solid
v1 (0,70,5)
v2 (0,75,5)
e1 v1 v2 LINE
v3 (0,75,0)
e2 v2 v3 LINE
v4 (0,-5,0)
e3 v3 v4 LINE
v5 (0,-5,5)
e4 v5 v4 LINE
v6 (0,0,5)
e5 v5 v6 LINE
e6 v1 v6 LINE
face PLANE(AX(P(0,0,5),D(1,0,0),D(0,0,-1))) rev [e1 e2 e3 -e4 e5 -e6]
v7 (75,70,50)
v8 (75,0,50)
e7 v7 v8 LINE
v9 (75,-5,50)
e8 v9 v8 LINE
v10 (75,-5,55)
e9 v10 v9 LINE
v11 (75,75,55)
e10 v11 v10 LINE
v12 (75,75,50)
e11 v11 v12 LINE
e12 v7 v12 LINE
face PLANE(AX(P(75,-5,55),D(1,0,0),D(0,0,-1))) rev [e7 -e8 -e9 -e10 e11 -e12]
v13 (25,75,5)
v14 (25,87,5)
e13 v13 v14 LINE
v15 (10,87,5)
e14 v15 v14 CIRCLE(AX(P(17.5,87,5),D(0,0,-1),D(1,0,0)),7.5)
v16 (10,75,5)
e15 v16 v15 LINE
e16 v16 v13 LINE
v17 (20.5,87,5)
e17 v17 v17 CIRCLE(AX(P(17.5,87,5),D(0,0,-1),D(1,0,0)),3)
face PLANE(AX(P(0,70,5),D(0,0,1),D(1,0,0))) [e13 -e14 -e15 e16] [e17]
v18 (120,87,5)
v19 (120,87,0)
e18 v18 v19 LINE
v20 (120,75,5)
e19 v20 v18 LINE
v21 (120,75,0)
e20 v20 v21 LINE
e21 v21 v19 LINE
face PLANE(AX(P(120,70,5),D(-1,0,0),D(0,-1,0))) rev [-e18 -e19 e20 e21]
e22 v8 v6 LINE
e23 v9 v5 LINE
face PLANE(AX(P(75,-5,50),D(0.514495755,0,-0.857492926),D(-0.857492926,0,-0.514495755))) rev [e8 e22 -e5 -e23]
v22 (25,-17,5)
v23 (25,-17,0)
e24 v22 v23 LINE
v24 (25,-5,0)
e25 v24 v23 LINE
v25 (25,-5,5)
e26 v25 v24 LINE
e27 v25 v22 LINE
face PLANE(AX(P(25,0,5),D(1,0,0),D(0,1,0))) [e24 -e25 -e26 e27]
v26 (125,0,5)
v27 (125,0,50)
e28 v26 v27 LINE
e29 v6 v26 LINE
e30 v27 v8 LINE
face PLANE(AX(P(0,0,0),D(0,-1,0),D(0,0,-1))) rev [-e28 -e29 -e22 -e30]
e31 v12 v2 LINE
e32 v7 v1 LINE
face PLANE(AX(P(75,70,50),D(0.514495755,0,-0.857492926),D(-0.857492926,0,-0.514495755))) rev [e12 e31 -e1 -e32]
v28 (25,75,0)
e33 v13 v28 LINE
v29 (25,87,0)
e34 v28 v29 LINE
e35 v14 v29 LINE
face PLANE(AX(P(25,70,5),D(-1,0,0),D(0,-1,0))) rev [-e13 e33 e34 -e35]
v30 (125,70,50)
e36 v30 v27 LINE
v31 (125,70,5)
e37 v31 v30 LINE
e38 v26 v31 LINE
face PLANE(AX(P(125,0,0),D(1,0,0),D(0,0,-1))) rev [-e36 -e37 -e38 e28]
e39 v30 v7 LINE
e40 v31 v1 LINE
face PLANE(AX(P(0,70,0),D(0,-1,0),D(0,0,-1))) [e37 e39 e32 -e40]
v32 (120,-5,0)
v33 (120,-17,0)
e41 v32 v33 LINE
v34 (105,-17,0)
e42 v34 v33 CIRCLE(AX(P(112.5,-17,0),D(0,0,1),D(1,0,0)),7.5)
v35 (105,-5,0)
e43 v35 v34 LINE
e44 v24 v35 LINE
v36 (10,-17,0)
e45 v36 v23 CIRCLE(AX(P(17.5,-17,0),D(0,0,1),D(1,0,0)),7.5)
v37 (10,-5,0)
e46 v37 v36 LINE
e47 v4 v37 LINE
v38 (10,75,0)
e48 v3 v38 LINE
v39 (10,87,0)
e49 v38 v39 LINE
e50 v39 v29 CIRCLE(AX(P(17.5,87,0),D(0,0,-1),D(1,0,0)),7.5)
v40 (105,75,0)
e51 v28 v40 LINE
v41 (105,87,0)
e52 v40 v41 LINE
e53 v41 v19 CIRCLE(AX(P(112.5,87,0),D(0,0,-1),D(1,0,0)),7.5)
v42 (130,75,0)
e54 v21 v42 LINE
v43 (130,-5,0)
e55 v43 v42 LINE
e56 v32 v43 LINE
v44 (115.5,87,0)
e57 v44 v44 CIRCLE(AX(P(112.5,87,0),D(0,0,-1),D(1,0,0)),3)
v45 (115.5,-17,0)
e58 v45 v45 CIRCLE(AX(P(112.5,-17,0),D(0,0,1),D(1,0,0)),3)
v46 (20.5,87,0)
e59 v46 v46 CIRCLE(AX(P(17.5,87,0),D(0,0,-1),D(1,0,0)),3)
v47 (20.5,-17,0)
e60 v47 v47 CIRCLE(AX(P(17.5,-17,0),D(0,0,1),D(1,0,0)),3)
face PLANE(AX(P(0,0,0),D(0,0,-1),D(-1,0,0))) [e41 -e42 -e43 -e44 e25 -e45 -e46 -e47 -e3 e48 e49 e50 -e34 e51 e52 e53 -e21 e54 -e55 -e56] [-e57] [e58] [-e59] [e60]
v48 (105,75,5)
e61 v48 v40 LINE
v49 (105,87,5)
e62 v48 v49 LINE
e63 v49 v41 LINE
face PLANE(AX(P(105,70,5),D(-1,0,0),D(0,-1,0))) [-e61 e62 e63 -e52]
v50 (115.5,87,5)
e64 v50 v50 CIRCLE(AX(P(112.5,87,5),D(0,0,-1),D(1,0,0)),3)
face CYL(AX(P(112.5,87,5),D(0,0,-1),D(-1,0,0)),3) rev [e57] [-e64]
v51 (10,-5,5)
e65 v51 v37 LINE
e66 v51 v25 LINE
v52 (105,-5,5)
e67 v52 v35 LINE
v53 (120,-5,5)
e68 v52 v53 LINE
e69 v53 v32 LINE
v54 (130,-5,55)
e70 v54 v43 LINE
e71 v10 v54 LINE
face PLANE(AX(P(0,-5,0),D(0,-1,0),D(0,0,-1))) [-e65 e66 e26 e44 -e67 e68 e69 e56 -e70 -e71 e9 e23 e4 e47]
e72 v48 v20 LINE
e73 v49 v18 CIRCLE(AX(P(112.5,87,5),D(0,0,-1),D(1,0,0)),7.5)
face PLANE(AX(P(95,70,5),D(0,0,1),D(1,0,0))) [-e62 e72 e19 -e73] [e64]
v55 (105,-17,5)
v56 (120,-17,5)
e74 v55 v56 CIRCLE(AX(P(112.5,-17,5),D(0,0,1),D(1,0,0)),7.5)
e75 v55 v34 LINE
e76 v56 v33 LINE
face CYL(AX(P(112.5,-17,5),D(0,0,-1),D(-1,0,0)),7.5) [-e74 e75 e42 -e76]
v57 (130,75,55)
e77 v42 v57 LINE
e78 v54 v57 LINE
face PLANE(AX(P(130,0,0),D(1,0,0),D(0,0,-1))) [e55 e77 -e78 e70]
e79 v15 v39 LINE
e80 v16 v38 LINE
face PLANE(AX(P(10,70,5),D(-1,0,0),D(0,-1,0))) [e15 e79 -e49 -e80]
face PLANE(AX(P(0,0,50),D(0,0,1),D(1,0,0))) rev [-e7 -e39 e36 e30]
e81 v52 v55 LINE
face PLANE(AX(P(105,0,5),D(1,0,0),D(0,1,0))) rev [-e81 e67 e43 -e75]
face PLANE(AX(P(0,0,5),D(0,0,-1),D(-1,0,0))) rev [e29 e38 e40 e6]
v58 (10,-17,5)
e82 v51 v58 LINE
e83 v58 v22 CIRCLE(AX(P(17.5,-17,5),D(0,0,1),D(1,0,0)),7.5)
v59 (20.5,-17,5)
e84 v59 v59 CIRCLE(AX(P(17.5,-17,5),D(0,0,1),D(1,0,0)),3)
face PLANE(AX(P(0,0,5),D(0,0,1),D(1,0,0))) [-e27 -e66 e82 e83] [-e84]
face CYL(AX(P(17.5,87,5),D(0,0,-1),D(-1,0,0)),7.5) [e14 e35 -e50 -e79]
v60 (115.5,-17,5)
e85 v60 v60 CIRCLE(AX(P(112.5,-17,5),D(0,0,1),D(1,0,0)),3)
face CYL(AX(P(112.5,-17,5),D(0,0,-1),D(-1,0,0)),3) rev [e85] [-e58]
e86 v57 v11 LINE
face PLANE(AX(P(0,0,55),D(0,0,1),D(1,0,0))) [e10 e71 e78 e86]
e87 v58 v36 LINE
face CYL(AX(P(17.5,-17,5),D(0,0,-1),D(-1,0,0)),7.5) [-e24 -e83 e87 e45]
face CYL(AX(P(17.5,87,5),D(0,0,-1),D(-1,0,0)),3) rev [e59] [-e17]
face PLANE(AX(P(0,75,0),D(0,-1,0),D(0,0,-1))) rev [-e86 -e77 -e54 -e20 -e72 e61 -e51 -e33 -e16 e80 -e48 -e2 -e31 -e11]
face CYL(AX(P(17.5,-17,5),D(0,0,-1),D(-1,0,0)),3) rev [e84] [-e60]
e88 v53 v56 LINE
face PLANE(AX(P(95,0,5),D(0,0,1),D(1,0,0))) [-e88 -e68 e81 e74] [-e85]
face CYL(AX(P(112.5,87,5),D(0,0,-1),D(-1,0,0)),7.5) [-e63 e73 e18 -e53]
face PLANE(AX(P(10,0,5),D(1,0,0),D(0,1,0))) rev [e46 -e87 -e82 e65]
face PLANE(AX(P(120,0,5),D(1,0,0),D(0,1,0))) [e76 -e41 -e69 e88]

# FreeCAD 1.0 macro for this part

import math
import FreeCAD as App
import Part
import Sketcher
Q = App.Units.Quantity

doc = App.newDocument("Part")
body = doc.addObject("PartDesign::Body", "Body")

# Sketch on XY plane
sketch1 = doc.addObject("Sketcher::SketchObject", "Sketch")
body.addObject(sketch1)
sketch1.AttachmentSupport = (doc.XY_Plane, [""])
sketch1.MapMode = "FlatFace"
sketch1.addGeometry(Part.LineSegment(App.Vector(0, 70, 0), App.Vector(0, 0, 0)), False)
sketch1.addGeometry(Part.LineSegment(App.Vector(0, 0, 0), App.Vector(125, 0, 0)), False)
sketch1.addGeometry(Part.LineSegment(App.Vector(125, 0, 0), App.Vector(125, 70, 0)), False)
sketch1.addGeometry(Part.LineSegment(App.Vector(125, 70, 0), App.Vector(0, 70, 0)), False)
sketch1.addConstraint(Sketcher.Constraint("Coincident", 0, 2, 1, 1))
sketch1.addConstraint(Sketcher.Constraint("Coincident", 1, 2, 2, 1))
sketch1.addConstraint(Sketcher.Constraint("Coincident", 2, 2, 3, 1))
sketch1.addConstraint(Sketcher.Constraint("Coincident", 3, 2, 0, 1))
sketch1.addConstraint(Sketcher.Constraint("Vertical", 0))
sketch1.addConstraint(Sketcher.Constraint("Horizontal", 1))
sketch1.addConstraint(Sketcher.Constraint("Vertical", 2))
sketch1.addConstraint(Sketcher.Constraint("Horizontal", 3))
sketch1.addConstraint(Sketcher.Constraint("Coincident", 0, 2, -1, 1))
sketch1.addConstraint(Sketcher.Constraint("DistanceX", 1, 1, 1, 2, Q("125 mm")))
sketch1.addConstraint(Sketcher.Constraint("DistanceY", 0, 2, 0, 1, Q("70 mm")))
pad1 = doc.addObject("PartDesign::Pad", "Pad")
body.addObject(pad1)
pad1.Profile = sketch1
pad1.Length = 5

# Sketch on XZ plane
sketch2 = doc.addObject("Sketcher::SketchObject", "Sketch001")
body.addObject(sketch2)
sketch2.AttachmentSupport = (doc.XZ_Plane, [""])
sketch2.MapMode = "FlatFace"
sketch2.addGeometry(Part.LineSegment(App.Vector(75, 50, 0), App.Vector(0, 5, 0)), False)
sketch2.addGeometry(Part.LineSegment(App.Vector(0, 5, 0), App.Vector(0, 0, 0)), False)
sketch2.addGeometry(Part.LineSegment(App.Vector(0, 0, 0), App.Vector(125, 0, 0)), False)
sketch2.addGeometry(Part.LineSegment(App.Vector(125, 0, 0), App.Vector(125, 50, 0)), False)
sketch2.addGeometry(Part.LineSegment(App.Vector(125, 50, 0), App.Vector(75, 50, 0)), False)
sketch2.addConstraint(Sketcher.Constraint("Coincident", 0, 2, 1, 1))
sketch2.addConstraint(Sketcher.Constraint("Coincident", 1, 2, 2, 1))
sketch2.addConstraint(Sketcher.Constraint("Coincident", 2, 2, 3, 1))
sketch2.addConstraint(Sketcher.Constraint("Coincident", 3, 2, 4, 1))
sketch2.addConstraint(Sketcher.Constraint("Coincident", 4, 2, 0, 1))
sketch2.addConstraint(Sketcher.Constraint("Vertical", 1))
sketch2.addConstraint(Sketcher.Constraint("Horizontal", 2))
sketch2.addConstraint(Sketcher.Constraint("Vertical", 3))
sketch2.addConstraint(Sketcher.Constraint("Horizontal", 4))
sketch2.addConstraint(Sketcher.Constraint("Coincident", 1, 2, -1, 1))
sketch2.addConstraint(Sketcher.Constraint("Equal", 4, 3))
sketch2.addConstraint(Sketcher.Constraint("DistanceX", 2, 1, 2, 2, Q("125 mm")))
sketch2.addConstraint(Sketcher.Constraint("DistanceX", 4, 2, 4, 1, Q("50 mm")))
sketch2.addConstraint(Sketcher.Constraint("DistanceY", 1, 2, 1, 1, Q("5 mm")))
pad2 = doc.addObject("PartDesign::Pad", "Pad001")
body.addObject(pad2)
pad2.Profile = sketch2
pad2.Length = 5
doc.recompute()

linearpattern = doc.addObject("PartDesign::LinearPattern", "LinearPattern")
body.addObject(linearpattern)
linearpattern.Originals = [pad2]
linearpattern.Direction = (doc.Y_Axis, [""])
linearpattern.Mode = "offset"
linearpattern.Offset = 75
linearpattern.Occurrences = 2
body.Tip = linearpattern

# Sketch on YZ plane
sketch3 = doc.addObject("Sketcher::SketchObject", "Sketch002")
body.addObject(sketch3)
sketch3.AttachmentSupport = (doc.YZ_Plane, [""])
sketch3.MapMode = "FlatFace"
sketch3.AttachmentOffset = App.Placement(App.Vector(0, 0, 125), App.Rotation())
sketch3.addGeometry(Part.LineSegment(App.Vector(75, 50, 0), App.Vector(-5, 50, 0)), False)
sketch3.addGeometry(Part.LineSegment(App.Vector(-5, 50, 0), App.Vector(-5, 0, 0)), False)
sketch3.addGeometry(Part.LineSegment(App.Vector(-5, 0, 0), App.Vector(75, 0, 0)), False)
sketch3.addGeometry(Part.LineSegment(App.Vector(75, 0, 0), App.Vector(75, 50, 0)), False)
sketch3.addConstraint(Sketcher.Constraint("Coincident", 0, 2, 1, 1))
sketch3.addConstraint(Sketcher.Constraint("Coincident", 1, 2, 2, 1))
sketch3.addConstraint(Sketcher.Constraint("Coincident", 2, 2, 3, 1))
sketch3.addConstraint(Sketcher.Constraint("Coincident", 3, 2, 0, 1))
sketch3.addConstraint(Sketcher.Constraint("Horizontal", 0))
sketch3.addConstraint(Sketcher.Constraint("Vertical", 1))
sketch3.addConstraint(Sketcher.Constraint("Horizontal", 2))
sketch3.addConstraint(Sketcher.Constraint("Vertical", 3))
sketch3.addConstraint(Sketcher.Constraint("PointOnObject", 1, 2, -1))
sketch3.addConstraint(Sketcher.Constraint("DistanceX", 0, 2, 0, 1, Q("80 mm")))
sketch3.addConstraint(Sketcher.Constraint("DistanceY", 1, 2, 1, 1, Q("50 mm")))
sketch3.addConstraint(Sketcher.Constraint("DistanceX", 0, 2, -1, 1, Q("5 mm")))
pad3 = doc.addObject("PartDesign::Pad", "Pad002")
body.addObject(pad3)
pad3.Profile = sketch3
pad3.Length = 5

# Sketch on XY plane
sketch4 = doc.addObject("Sketcher::SketchObject", "Sketch003")
body.addObject(sketch4)
sketch4.AttachmentSupport = (doc.XY_Plane, [""])
sketch4.MapMode = "FlatFace"
sketch4.AttachmentOffset = App.Placement(App.Vector(0, 0, 50), App.Rotation())
sketch4.addGeometry(Part.LineSegment(App.Vector(75, 75, 0), App.Vector(75, -5, 0)), False)
sketch4.addGeometry(Part.LineSegment(App.Vector(75, -5, 0), App.Vector(130, -5, 0)), False)
sketch4.addGeometry(Part.LineSegment(App.Vector(130, -5, 0), App.Vector(130, 75, 0)), False)
sketch4.addGeometry(Part.LineSegment(App.Vector(130, 75, 0), App.Vector(75, 75, 0)), False)
sketch4.addConstraint(Sketcher.Constraint("Coincident", 0, 2, 1, 1))
sketch4.addConstraint(Sketcher.Constraint("Coincident", 1, 2, 2, 1))
sketch4.addConstraint(Sketcher.Constraint("Coincident", 2, 2, 3, 1))
sketch4.addConstraint(Sketcher.Constraint("Coincident", 3, 2, 0, 1))
sketch4.addConstraint(Sketcher.Constraint("Vertical", 0))
sketch4.addConstraint(Sketcher.Constraint("Horizontal", 1))
sketch4.addConstraint(Sketcher.Constraint("Vertical", 2))
sketch4.addConstraint(Sketcher.Constraint("Horizontal", 3))
sketch4.addConstraint(Sketcher.Constraint("DistanceX", 1, 1, 1, 2, Q("55 mm")))
sketch4.addConstraint(Sketcher.Constraint("DistanceY", 0, 2, 0, 1, Q("80 mm")))
sketch4.addConstraint(Sketcher.Constraint("DistanceX", -1, 1, 0, 2, Q("75 mm")))
sketch4.addConstraint(Sketcher.Constraint("DistanceY", 0, 2, -1, 1, Q("5 mm")))
pad4 = doc.addObject("PartDesign::Pad", "Pad003")
body.addObject(pad4)
pad4.Profile = sketch4
pad4.Length = 5

# Sketch on XY plane
sketch5 = doc.addObject("Sketcher::SketchObject", "Sketch004")
body.addObject(sketch5)
sketch5.AttachmentSupport = (doc.XY_Plane, [""])
sketch5.MapMode = "FlatFace"
sketch5.addGeometry(Part.LineSegment(App.Vector(10, -5, 0), App.Vector(10, -17, 0)), False)
sketch5.addGeometry(Part.ArcOfCircle(Part.Circle(App.Vector(17.5, -17, 0), App.Vector(0, 0, 1), 7.5), math.radians(180), math.radians(360)), False)
sketch5.addGeometry(Part.LineSegment(App.Vector(25, -17, 0), App.Vector(25, -5, 0)), False)
sketch5.addGeometry(Part.LineSegment(App.Vector(25, -5, 0), App.Vector(10, -5, 0)), False)
sketch5.addGeometry(Part.Circle(App.Vector(17.5, -17, 0), App.Vector(0, 0, 1), 3), False)
sketch5.addConstraint(Sketcher.Constraint("Tangent", 0, 2, 1, 1))
sketch5.addConstraint(Sketcher.Constraint("Tangent", 1, 2, 2, 1))
sketch5.addConstraint(Sketcher.Constraint("Coincident", 2, 2, 3, 1))
sketch5.addConstraint(Sketcher.Constraint("Coincident", 3, 2, 0, 1))
sketch5.addConstraint(Sketcher.Constraint("Vertical", 0))
sketch5.addConstraint(Sketcher.Constraint("Vertical", 2))
sketch5.addConstraint(Sketcher.Constraint("Horizontal", 3))
sketch5.addConstraint(Sketcher.Constraint("Coincident", 4, 3, 1, 3))
sketch5.addConstraint(Sketcher.Constraint("Diameter", 4, Q("6 mm")))
sketch5.addConstraint(Sketcher.Constraint("Radius", 1, Q("7.5 mm")))
sketch5.addConstraint(Sketcher.Constraint("DistanceY", 0, 2, 0, 1, Q("12 mm")))
sketch5.addConstraint(Sketcher.Constraint("DistanceY", 1, 3, -1, 1, Q("17 mm")))
sketch5.addConstraint(Sketcher.Constraint("DistanceX", -1, 1, 0, 2, Q("10 mm")))
pad5 = doc.addObject("PartDesign::Pad", "Pad004")
body.addObject(pad5)
pad5.Profile = sketch5
pad5.Length = 5
doc.recompute()

linearpattern2 = doc.addObject("PartDesign::LinearPattern", "LinearPattern001")
body.addObject(linearpattern2)
linearpattern2.Originals = [pad5]
linearpattern2.Direction = (doc.X_Axis, [""])
linearpattern2.Mode = "offset"
linearpattern2.Offset = 95
linearpattern2.Occurrences = 2
body.Tip = linearpattern2
doc.recompute()

datumplane = doc.addObject("PartDesign::Plane", "DatumPlane")
body.addObject(datumplane)
datumplane.AttachmentSupport = (doc.XZ_Plane, [""])
datumplane.MapMode = "FlatFace"
datumplane.AttachmentOffset = App.Placement(App.Vector(0, 0, -35), App.Rotation())
mirrored = doc.addObject("PartDesign::Mirrored", "Mirrored")
body.addObject(mirrored)
mirrored.Originals = [pad5]
mirrored.MirrorPlane = (datumplane, [""])
body.Tip = mirrored

# Sketch on XY plane
sketch6 = doc.addObject("Sketcher::SketchObject", "Sketch005")
body.addObject(sketch6)
sketch6.AttachmentSupport = (doc.XY_Plane, [""])
sketch6.MapMode = "FlatFace"
sketch6.addGeometry(Part.LineSegment(App.Vector(105, 87, 0), App.Vector(105, 75, 0)), False)
sketch6.addGeometry(Part.LineSegment(App.Vector(105, 75, 0), App.Vector(120, 75, 0)), False)
sketch6.addGeometry(Part.LineSegment(App.Vector(120, 75, 0), App.Vector(120, 87, 0)), False)
sketch6.addGeometry(Part.ArcOfCircle(Part.Circle(App.Vector(112.5, 87, 0), App.Vector(0, 0, 1), 7.5), math.radians(0), math.radians(180)), False)
sketch6.addGeometry(Part.Circle(App.Vector(112.5, 87, 0), App.Vector(0, 0, 1), 3), False)
sketch6.addConstraint(Sketcher.Constraint("Coincident", 0, 2, 1, 1))
sketch6.addConstraint(Sketcher.Constraint("Coincident", 1, 2, 2, 1))
sketch6.addConstraint(Sketcher.Constraint("Tangent", 2, 2, 3, 1))
sketch6.addConstraint(Sketcher.Constraint("Tangent", 3, 2, 0, 1))
sketch6.addConstraint(Sketcher.Constraint("Vertical", 0))
sketch6.addConstraint(Sketcher.Constraint("Horizontal", 1))
sketch6.addConstraint(Sketcher.Constraint("Vertical", 2))
sketch6.addConstraint(Sketcher.Constraint("Coincident", 4, 3, 3, 3))
sketch6.addConstraint(Sketcher.Constraint("Diameter", 4, Q("6 mm")))
sketch6.addConstraint(Sketcher.Constraint("Radius", 3, Q("7.5 mm")))
sketch6.addConstraint(Sketcher.Constraint("DistanceY", 0, 2, 0, 1, Q("12 mm")))
sketch6.addConstraint(Sketcher.Constraint("DistanceY", -1, 1, 3, 3, Q("87 mm")))
sketch6.addConstraint(Sketcher.Constraint("DistanceX", -1, 1, 0, 2, Q("105 mm")))
pad6 = doc.addObject("PartDesign::Pad", "Pad005")
body.addObject(pad6)
pad6.Profile = sketch6
pad6.Length = 5

doc.recompute()
